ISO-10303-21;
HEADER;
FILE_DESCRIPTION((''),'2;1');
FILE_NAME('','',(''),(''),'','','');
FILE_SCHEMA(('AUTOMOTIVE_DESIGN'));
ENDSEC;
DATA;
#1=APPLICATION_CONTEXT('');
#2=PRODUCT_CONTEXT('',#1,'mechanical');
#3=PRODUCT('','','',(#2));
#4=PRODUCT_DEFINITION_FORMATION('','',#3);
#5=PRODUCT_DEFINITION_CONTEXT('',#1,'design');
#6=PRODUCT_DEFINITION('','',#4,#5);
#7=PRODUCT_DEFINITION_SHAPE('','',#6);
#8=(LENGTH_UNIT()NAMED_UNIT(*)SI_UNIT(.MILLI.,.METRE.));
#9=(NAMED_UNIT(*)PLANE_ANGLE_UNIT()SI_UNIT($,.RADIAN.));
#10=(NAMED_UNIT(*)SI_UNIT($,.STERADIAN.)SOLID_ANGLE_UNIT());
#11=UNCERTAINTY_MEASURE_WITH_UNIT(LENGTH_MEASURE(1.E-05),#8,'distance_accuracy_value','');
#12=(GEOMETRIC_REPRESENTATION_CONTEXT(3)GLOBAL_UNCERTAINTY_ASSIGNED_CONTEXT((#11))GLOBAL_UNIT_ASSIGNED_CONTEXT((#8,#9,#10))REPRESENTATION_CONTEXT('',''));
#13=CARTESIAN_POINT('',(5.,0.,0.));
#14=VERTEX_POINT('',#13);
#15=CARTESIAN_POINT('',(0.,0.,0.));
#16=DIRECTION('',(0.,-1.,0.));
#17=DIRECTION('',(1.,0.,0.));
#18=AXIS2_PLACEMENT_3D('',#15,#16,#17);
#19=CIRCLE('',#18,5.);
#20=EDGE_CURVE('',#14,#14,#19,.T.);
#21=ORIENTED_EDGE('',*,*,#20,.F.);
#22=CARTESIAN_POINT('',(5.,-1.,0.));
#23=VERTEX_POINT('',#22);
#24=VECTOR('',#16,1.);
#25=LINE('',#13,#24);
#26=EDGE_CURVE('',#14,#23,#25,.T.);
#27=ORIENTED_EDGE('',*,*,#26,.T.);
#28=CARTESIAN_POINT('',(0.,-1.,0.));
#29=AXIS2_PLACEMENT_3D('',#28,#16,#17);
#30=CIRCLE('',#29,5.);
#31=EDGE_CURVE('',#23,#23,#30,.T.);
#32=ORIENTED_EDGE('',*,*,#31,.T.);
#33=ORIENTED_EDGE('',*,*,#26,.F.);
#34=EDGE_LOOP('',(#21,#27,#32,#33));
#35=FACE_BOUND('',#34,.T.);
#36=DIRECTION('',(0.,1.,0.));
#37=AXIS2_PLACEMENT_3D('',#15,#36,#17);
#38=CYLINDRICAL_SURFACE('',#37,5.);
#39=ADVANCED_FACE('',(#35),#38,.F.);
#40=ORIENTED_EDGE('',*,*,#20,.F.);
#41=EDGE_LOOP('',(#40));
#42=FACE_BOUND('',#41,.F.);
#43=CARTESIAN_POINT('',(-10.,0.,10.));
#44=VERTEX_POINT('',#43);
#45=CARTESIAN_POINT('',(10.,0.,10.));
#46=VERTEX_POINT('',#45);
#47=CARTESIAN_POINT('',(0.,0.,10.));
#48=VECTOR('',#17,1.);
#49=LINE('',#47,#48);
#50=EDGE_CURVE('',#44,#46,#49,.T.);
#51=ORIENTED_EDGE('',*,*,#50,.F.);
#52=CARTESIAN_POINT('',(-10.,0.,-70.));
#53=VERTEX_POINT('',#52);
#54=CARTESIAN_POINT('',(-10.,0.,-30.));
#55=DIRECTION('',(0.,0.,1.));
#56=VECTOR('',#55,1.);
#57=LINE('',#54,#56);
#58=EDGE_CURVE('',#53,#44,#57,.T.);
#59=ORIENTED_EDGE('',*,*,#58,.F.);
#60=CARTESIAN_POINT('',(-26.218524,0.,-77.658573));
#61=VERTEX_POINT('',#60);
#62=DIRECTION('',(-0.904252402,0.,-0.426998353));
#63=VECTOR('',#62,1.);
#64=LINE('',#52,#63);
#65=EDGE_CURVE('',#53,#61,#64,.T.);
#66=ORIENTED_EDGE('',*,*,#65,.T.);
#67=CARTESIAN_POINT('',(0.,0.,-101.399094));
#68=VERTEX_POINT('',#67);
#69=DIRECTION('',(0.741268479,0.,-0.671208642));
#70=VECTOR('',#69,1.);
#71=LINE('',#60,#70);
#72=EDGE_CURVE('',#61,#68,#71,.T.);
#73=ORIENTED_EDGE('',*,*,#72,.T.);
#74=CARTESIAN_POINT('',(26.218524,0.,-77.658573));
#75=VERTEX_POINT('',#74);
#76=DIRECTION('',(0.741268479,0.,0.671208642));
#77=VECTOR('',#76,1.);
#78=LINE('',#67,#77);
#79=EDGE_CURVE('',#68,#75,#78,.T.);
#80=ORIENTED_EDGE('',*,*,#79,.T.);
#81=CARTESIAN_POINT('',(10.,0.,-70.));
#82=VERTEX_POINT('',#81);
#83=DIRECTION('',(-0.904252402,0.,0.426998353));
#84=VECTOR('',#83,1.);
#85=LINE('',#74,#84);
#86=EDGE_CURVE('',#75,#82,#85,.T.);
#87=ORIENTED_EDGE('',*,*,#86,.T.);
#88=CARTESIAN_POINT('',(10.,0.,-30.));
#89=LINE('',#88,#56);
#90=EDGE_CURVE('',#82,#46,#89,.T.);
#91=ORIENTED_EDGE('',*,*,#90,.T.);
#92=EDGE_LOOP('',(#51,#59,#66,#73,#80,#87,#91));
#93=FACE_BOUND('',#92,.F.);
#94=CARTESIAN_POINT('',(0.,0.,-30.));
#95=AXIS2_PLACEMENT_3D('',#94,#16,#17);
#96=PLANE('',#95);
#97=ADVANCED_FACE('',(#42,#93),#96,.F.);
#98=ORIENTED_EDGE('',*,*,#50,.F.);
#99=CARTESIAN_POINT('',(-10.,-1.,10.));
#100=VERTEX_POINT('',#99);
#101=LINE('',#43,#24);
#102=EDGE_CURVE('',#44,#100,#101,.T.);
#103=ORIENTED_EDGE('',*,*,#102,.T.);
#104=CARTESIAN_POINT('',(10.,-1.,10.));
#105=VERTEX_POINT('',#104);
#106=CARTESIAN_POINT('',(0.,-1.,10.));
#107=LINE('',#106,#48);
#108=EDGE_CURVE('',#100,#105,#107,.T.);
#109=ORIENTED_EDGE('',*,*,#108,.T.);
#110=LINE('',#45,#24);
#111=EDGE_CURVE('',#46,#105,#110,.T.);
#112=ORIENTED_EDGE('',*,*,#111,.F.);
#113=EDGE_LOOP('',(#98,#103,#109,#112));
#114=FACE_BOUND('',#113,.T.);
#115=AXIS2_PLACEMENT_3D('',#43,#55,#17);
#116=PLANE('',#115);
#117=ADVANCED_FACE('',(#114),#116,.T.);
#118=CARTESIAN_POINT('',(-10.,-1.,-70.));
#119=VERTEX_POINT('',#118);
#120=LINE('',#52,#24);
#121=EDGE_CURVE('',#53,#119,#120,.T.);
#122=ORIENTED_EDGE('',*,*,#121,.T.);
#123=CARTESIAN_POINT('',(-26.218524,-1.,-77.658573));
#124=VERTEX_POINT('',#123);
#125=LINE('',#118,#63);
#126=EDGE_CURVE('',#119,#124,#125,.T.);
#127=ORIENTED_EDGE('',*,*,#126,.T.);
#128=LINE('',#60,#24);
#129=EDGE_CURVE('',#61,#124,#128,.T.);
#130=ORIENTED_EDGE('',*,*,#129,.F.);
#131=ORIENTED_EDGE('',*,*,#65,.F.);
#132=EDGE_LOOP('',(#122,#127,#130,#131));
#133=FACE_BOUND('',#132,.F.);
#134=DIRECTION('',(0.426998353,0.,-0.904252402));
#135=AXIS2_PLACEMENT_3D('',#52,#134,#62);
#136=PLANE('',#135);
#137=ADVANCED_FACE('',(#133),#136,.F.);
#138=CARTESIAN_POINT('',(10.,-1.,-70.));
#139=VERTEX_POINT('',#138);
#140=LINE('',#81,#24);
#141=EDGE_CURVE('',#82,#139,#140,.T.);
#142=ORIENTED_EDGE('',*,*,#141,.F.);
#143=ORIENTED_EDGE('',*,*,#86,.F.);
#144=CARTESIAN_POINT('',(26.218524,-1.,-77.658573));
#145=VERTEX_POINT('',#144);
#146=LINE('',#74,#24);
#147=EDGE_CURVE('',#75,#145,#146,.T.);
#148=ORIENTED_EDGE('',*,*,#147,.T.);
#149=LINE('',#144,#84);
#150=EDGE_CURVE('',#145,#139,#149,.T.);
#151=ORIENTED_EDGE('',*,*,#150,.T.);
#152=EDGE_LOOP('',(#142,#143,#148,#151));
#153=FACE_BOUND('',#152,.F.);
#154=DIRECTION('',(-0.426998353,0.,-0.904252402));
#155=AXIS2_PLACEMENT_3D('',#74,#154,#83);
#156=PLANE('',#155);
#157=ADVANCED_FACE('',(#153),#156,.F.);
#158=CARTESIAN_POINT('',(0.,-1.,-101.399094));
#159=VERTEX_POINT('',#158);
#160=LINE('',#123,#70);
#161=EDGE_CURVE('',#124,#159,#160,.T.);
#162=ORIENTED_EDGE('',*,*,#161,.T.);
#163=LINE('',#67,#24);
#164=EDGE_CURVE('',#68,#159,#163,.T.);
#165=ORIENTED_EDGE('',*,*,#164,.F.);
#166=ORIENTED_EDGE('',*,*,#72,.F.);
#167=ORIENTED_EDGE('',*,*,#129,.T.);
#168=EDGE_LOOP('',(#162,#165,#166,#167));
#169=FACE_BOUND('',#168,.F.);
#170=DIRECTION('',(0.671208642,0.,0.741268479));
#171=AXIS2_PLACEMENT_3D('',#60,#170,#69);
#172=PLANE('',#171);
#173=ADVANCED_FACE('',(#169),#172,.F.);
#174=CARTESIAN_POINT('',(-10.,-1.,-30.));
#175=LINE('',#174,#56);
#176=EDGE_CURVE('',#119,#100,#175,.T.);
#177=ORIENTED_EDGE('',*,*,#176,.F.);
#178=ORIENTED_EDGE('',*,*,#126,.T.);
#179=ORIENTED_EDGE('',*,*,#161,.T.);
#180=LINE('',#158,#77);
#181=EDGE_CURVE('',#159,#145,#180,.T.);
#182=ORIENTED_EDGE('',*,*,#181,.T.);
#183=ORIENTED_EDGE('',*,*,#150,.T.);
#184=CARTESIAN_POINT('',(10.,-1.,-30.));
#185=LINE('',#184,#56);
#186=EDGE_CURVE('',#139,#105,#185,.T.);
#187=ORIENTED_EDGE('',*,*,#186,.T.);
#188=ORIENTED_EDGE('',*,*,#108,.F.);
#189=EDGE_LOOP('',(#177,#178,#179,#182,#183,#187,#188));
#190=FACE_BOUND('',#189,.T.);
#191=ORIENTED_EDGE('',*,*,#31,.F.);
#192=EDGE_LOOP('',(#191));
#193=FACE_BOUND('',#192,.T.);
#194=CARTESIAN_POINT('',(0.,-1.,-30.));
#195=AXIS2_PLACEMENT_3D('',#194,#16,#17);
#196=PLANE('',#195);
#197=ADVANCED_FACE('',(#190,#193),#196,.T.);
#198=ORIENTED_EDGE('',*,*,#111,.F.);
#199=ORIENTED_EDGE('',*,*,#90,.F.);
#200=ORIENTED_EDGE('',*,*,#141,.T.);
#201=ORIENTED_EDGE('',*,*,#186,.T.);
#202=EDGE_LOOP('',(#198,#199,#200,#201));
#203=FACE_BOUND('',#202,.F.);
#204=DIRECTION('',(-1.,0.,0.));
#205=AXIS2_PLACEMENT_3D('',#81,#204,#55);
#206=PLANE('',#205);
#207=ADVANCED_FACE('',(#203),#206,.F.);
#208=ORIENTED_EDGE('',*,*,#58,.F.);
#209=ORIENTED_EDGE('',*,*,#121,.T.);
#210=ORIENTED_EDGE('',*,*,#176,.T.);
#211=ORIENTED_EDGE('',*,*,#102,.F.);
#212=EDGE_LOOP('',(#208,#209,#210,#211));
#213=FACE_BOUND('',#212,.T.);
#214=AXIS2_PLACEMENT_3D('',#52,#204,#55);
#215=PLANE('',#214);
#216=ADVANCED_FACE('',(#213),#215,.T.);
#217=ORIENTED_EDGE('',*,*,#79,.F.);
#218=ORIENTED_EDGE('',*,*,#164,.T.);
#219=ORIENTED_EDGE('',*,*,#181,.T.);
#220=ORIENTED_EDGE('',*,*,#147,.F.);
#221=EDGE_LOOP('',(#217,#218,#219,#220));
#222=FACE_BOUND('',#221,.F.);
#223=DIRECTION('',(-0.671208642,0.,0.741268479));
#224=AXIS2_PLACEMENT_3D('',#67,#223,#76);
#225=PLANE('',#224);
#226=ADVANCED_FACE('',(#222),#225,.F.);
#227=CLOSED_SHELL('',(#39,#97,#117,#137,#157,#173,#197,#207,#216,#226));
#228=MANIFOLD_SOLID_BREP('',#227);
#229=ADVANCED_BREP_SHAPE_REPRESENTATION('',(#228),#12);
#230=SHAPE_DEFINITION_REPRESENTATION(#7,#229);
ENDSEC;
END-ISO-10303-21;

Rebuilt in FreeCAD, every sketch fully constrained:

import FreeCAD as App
import Part
import Sketcher
from FreeCAD import Vector
Q = App.Units.Quantity


def add_polygon(sketch, points):
    """Adds a closed chain of lines whose ends are joined by coincident constraints."""
    first, n = sketch.GeometryCount, len(points)
    for a, b in zip(points, points[1:] + points[:1]):
        sketch.addGeometry(Part.LineSegment(App.Vector(*a, 0), App.Vector(*b, 0)), False)
    for i in range(n):
        sketch.addConstraint(Sketcher.Constraint("Coincident", first + i, 2, first + (i + 1) % n, 1))

doc = App.newDocument("Part")
params = doc.addObject("Spreadsheet::Sheet", "Params")
for row, (alias, value) in enumerate([
    ("sketch1_diameter", "10 mm"),
    ("sketch1_width", "20 mm"),
    ("sketch1_height", "80 mm"),
    ("pad1_length", "1 mm"),
], start=1):
    params.set(f"A{row}", alias)
    params.set(f"B{row}", "=" + value)
    params.setAlias(f"B{row}", alias)

body = doc.addObject("PartDesign::Body", "Body")

# Sketch on XZ plane
sketch1 = doc.addObject("Sketcher::SketchObject", "Sketch")
body.addObject(sketch1)
sketch1.AttachmentSupport = (doc.XZ_Plane, [""])
sketch1.MapMode = "FlatFace"
add_polygon(sketch1, [(-10, 10), (-10, -70), (-26.218524, -77.658573), (0, -101.399094), (26.218524, -77.658573), (10, -70), (10, 10)])  # lines 0-6
sketch1.addGeometry(Part.Circle(Vector(0, 0, 0), Vector(0, 0, 1), 5), False)  # 7
sketch1.addConstraint([
    Sketcher.Constraint("Vertical", 0),
    Sketcher.Constraint("Vertical", 5),
    Sketcher.Constraint("Horizontal", 6),
    Sketcher.Constraint("Coincident", 7, 3, -1, 1),
    Sketcher.Constraint("Symmetric", 1, 2, 3, 2, -2),
    Sketcher.Constraint("Symmetric", 0, 2, 4, 2, -2),
    Sketcher.Constraint("PointOnObject", 2, 2, -2),
    Sketcher.Constraint("Diameter", 7, Q("10 mm")),
    Sketcher.Constraint("DistanceX", 6, 2, 6, 1, Q("20 mm")),
    Sketcher.Constraint("DistanceY", 0, 2, 0, 1, Q("80 mm")),
    Sketcher.Constraint("DistanceY", 0, 2, -1, 1, Q("70 mm")),
    Sketcher.Constraint("Distance", 2, Q("35.369808 mm")),
    Sketcher.Constraint("DistanceY", 2, 2, 1, 2, Q("23.740521 mm")),
    Sketcher.Constraint("Distance", 1, Q("17.935837 mm")),
])
sketch1.setExpression("Constraints[14]", "Params.sketch1_diameter")
sketch1.setExpression("Constraints[15]", "Params.sketch1_width")
sketch1.setExpression("Constraints[16]", "Params.sketch1_height")
pad1 = doc.addObject("PartDesign::Pad", "Pad")
body.addObject(pad1)
pad1.Profile = sketch1
pad1.setExpression("Length", "Params.pad1_length")

doc.recompute()
